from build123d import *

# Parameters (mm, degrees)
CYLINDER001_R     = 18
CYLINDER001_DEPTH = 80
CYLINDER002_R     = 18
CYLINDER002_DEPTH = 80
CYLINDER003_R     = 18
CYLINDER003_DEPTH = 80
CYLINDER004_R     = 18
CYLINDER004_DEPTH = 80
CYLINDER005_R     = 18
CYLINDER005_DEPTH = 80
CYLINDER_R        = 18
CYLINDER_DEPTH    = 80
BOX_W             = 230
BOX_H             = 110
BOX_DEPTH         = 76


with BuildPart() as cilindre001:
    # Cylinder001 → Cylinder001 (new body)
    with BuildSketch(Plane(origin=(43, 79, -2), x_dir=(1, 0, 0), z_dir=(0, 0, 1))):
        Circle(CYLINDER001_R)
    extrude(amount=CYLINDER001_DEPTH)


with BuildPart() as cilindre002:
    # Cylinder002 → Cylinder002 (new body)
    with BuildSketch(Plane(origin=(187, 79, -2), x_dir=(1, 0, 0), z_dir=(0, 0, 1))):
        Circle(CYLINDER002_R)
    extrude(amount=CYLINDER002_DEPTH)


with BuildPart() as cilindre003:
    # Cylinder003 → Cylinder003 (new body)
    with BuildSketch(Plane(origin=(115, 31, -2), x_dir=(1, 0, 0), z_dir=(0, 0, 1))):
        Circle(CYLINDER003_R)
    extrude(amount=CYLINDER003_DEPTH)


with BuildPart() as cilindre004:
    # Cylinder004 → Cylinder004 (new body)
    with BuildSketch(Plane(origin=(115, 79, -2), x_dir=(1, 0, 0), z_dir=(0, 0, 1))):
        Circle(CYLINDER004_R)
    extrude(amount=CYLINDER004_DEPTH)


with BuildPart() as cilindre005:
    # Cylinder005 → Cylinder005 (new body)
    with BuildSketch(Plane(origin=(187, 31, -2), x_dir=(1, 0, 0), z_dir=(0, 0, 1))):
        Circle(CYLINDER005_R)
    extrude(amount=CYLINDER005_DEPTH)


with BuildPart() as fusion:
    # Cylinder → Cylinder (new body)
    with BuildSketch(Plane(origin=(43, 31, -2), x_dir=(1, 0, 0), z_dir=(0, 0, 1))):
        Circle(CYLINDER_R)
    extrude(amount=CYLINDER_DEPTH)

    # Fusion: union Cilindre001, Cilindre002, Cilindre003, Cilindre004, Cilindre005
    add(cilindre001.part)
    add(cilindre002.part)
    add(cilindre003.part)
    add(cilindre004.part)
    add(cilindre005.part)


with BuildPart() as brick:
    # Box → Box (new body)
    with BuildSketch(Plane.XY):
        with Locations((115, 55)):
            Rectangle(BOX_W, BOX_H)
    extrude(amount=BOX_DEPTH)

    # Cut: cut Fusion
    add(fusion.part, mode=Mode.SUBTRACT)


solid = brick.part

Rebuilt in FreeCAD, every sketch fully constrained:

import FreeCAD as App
import Part
import Sketcher
Q = App.Units.Quantity


def add_polygon(sketch, points):
    """Adds a closed chain of lines whose ends are joined by coincident constraints."""
    first, n = sketch.GeometryCount, len(points)
    for a, b in zip(points, points[1:] + points[:1]):
        sketch.addGeometry(Part.LineSegment(App.Vector(*a, 0), App.Vector(*b, 0)), False)
    for i in range(n):
        sketch.addConstraint(Sketcher.Constraint("Coincident", first + i, 2, first + (i + 1) % n, 1))

doc = App.newDocument("Part")
body = doc.addObject("PartDesign::Body", "Body")

# Sketch on XY plane
sketch1 = doc.addObject("Sketcher::SketchObject", "Sketch")
body.addObject(sketch1)
sketch1.AttachmentSupport = (doc.XY_Plane, [""])
sketch1.MapMode = "FlatFace"
sketch1.AttachmentOffset = App.Placement(App.Vector(0, 0, -2), App.Rotation())
sketch1.addGeometry(Part.Circle(App.Vector(43, 79, 0), App.Vector(0, 0, 1), 18), False)
sketch1.addConstraint([
    Sketcher.Constraint("Diameter", 0, Q("36 mm")),
    Sketcher.Constraint("DistanceX", -1, 1, 0, 3, Q("43 mm")),
    Sketcher.Constraint("DistanceY", -1, 1, 0, 3, Q("79 mm")),
])
pad1 = doc.addObject("PartDesign::Pad", "Pad")
body.addObject(pad1)
pad1.Profile = sketch1
pad1.Length = 80
body2 = doc.addObject("PartDesign::Body", "Body001")

# Sketch on XY plane
sketch2 = doc.addObject("Sketcher::SketchObject", "Sketch001")
body2.addObject(sketch2)
sketch2.AttachmentSupport = (doc.getObject("XY_Plane001"), [""])
sketch2.MapMode = "FlatFace"
sketch2.AttachmentOffset = App.Placement(App.Vector(0, 0, -2), App.Rotation())
sketch2.addGeometry(Part.Circle(App.Vector(187, 79, 0), App.Vector(0, 0, 1), 18), False)
sketch2.addConstraint([
    Sketcher.Constraint("Diameter", 0, Q("36 mm")),
    Sketcher.Constraint("DistanceX", -1, 1, 0, 3, Q("187 mm")),
    Sketcher.Constraint("DistanceY", -1, 1, 0, 3, Q("79 mm")),
])
pad2 = doc.addObject("PartDesign::Pad", "Pad001")
body2.addObject(pad2)
pad2.Profile = sketch2
pad2.Length = 80
body3 = doc.addObject("PartDesign::Body", "Body002")

# Sketch on XY plane
sketch3 = doc.addObject("Sketcher::SketchObject", "Sketch002")
body3.addObject(sketch3)
sketch3.AttachmentSupport = (doc.getObject("XY_Plane002"), [""])
sketch3.MapMode = "FlatFace"
sketch3.AttachmentOffset = App.Placement(App.Vector(0, 0, -2), App.Rotation())
sketch3.addGeometry(Part.Circle(App.Vector(115, 31, 0), App.Vector(0, 0, 1), 18), False)
sketch3.addConstraint([
    Sketcher.Constraint("Diameter", 0, Q("36 mm")),
    Sketcher.Constraint("DistanceX", -1, 1, 0, 3, Q("115 mm")),
    Sketcher.Constraint("DistanceY", -1, 1, 0, 3, Q("31 mm")),
])
pad3 = doc.addObject("PartDesign::Pad", "Pad002")
body3.addObject(pad3)
pad3.Profile = sketch3
pad3.Length = 80
body4 = doc.addObject("PartDesign::Body", "Body003")

# Sketch on XY plane
sketch4 = doc.addObject("Sketcher::SketchObject", "Sketch003")
body4.addObject(sketch4)
sketch4.AttachmentSupport = (doc.getObject("XY_Plane003"), [""])
sketch4.MapMode = "FlatFace"
sketch4.AttachmentOffset = App.Placement(App.Vector(0, 0, -2), App.Rotation())
sketch4.addGeometry(Part.Circle(App.Vector(115, 79, 0), App.Vector(0, 0, 1), 18), False)
sketch4.addConstraint([
    Sketcher.Constraint("Diameter", 0, Q("36 mm")),
    Sketcher.Constraint("DistanceX", -1, 1, 0, 3, Q("115 mm")),
    Sketcher.Constraint("DistanceY", -1, 1, 0, 3, Q("79 mm")),
])
pad4 = doc.addObject("PartDesign::Pad", "Pad003")
body4.addObject(pad4)
pad4.Profile = sketch4
pad4.Length = 80
body5 = doc.addObject("PartDesign::Body", "Body004")

# Sketch on XY plane
sketch5 = doc.addObject("Sketcher::SketchObject", "Sketch004")
body5.addObject(sketch5)
sketch5.AttachmentSupport = (doc.getObject("XY_Plane004"), [""])
sketch5.MapMode = "FlatFace"
sketch5.AttachmentOffset = App.Placement(App.Vector(0, 0, -2), App.Rotation())
sketch5.addGeometry(Part.Circle(App.Vector(187, 31, 0), App.Vector(0, 0, 1), 18), False)
sketch5.addConstraint([
    Sketcher.Constraint("Diameter", 0, Q("36 mm")),
    Sketcher.Constraint("DistanceX", -1, 1, 0, 3, Q("187 mm")),
    Sketcher.Constraint("DistanceY", -1, 1, 0, 3, Q("31 mm")),
])
pad5 = doc.addObject("PartDesign::Pad", "Pad004")
body5.addObject(pad5)
pad5.Profile = sketch5
pad5.Length = 80
body6 = doc.addObject("PartDesign::Body", "Body005")
body6.AllowCompound = True

# Sketch on XY plane
sketch6 = doc.addObject("Sketcher::SketchObject", "Sketch005")
body6.addObject(sketch6)
sketch6.AttachmentSupport = (doc.getObject("XY_Plane005"), [""])
sketch6.MapMode = "FlatFace"
sketch6.AttachmentOffset = App.Placement(App.Vector(0, 0, -2), App.Rotation())
sketch6.addGeometry(Part.Circle(App.Vector(43, 31, 0), App.Vector(0, 0, 1), 18), False)
sketch6.addConstraint([
    Sketcher.Constraint("Diameter", 0, Q("36 mm")),
    Sketcher.Constraint("DistanceX", -1, 1, 0, 3, Q("43 mm")),
    Sketcher.Constraint("DistanceY", -1, 1, 0, 3, Q("31 mm")),
])
pad6 = doc.addObject("PartDesign::Pad", "Pad005")
body6.addObject(pad6)
pad6.Profile = sketch6
pad6.Length = 80
doc.recompute()

boolean = doc.addObject("PartDesign::Boolean", "Boolean")
body6.addObject(boolean)
boolean.Type = "Fuse"
boolean.addObjects([body])
doc.recompute()

boolean2 = doc.addObject("PartDesign::Boolean", "Boolean001")
body6.addObject(boolean2)
boolean2.Type = "Fuse"
boolean2.addObjects([body2])
doc.recompute()

boolean3 = doc.addObject("PartDesign::Boolean", "Boolean002")
body6.addObject(boolean3)
boolean3.Type = "Fuse"
boolean3.addObjects([body3])
doc.recompute()

boolean4 = doc.addObject("PartDesign::Boolean", "Boolean003")
body6.addObject(boolean4)
boolean4.Type = "Fuse"
boolean4.addObjects([body4])
doc.recompute()

boolean5 = doc.addObject("PartDesign::Boolean", "Boolean004")
body6.addObject(boolean5)
boolean5.Type = "Fuse"
boolean5.addObjects([body5])
body7 = doc.addObject("PartDesign::Body", "Body006")

# Sketch on XY plane
sketch7 = doc.addObject("Sketcher::SketchObject", "Sketch006")
body7.addObject(sketch7)
sketch7.AttachmentSupport = (doc.getObject("XY_Plane006"), [""])
sketch7.MapMode = "FlatFace"
add_polygon(sketch7, [(0, 110), (0, 0), (230, 0), (230, 110)])  # lines 0-3
sketch7.addConstraint([
    Sketcher.Constraint("Vertical", 0),
    Sketcher.Constraint("Horizontal", 1),
    Sketcher.Constraint("Vertical", 2),
    Sketcher.Constraint("Horizontal", 3),
    Sketcher.Constraint("Coincident", 0, 2, -1, 1),
    Sketcher.Constraint("DistanceX", 1, 1, 1, 2, Q("230 mm")),
    Sketcher.Constraint("DistanceY", 0, 2, 0, 1, Q("110 mm")),
])
pad7 = doc.addObject("PartDesign::Pad", "Pad006")
body7.addObject(pad7)
pad7.Profile = sketch7
pad7.Length = 76
doc.recompute()

boolean6 = doc.addObject("PartDesign::Boolean", "Boolean005")
body7.addObject(boolean6)
boolean6.Type = "Cut"
boolean6.addObjects([body6])

doc.recompute()
